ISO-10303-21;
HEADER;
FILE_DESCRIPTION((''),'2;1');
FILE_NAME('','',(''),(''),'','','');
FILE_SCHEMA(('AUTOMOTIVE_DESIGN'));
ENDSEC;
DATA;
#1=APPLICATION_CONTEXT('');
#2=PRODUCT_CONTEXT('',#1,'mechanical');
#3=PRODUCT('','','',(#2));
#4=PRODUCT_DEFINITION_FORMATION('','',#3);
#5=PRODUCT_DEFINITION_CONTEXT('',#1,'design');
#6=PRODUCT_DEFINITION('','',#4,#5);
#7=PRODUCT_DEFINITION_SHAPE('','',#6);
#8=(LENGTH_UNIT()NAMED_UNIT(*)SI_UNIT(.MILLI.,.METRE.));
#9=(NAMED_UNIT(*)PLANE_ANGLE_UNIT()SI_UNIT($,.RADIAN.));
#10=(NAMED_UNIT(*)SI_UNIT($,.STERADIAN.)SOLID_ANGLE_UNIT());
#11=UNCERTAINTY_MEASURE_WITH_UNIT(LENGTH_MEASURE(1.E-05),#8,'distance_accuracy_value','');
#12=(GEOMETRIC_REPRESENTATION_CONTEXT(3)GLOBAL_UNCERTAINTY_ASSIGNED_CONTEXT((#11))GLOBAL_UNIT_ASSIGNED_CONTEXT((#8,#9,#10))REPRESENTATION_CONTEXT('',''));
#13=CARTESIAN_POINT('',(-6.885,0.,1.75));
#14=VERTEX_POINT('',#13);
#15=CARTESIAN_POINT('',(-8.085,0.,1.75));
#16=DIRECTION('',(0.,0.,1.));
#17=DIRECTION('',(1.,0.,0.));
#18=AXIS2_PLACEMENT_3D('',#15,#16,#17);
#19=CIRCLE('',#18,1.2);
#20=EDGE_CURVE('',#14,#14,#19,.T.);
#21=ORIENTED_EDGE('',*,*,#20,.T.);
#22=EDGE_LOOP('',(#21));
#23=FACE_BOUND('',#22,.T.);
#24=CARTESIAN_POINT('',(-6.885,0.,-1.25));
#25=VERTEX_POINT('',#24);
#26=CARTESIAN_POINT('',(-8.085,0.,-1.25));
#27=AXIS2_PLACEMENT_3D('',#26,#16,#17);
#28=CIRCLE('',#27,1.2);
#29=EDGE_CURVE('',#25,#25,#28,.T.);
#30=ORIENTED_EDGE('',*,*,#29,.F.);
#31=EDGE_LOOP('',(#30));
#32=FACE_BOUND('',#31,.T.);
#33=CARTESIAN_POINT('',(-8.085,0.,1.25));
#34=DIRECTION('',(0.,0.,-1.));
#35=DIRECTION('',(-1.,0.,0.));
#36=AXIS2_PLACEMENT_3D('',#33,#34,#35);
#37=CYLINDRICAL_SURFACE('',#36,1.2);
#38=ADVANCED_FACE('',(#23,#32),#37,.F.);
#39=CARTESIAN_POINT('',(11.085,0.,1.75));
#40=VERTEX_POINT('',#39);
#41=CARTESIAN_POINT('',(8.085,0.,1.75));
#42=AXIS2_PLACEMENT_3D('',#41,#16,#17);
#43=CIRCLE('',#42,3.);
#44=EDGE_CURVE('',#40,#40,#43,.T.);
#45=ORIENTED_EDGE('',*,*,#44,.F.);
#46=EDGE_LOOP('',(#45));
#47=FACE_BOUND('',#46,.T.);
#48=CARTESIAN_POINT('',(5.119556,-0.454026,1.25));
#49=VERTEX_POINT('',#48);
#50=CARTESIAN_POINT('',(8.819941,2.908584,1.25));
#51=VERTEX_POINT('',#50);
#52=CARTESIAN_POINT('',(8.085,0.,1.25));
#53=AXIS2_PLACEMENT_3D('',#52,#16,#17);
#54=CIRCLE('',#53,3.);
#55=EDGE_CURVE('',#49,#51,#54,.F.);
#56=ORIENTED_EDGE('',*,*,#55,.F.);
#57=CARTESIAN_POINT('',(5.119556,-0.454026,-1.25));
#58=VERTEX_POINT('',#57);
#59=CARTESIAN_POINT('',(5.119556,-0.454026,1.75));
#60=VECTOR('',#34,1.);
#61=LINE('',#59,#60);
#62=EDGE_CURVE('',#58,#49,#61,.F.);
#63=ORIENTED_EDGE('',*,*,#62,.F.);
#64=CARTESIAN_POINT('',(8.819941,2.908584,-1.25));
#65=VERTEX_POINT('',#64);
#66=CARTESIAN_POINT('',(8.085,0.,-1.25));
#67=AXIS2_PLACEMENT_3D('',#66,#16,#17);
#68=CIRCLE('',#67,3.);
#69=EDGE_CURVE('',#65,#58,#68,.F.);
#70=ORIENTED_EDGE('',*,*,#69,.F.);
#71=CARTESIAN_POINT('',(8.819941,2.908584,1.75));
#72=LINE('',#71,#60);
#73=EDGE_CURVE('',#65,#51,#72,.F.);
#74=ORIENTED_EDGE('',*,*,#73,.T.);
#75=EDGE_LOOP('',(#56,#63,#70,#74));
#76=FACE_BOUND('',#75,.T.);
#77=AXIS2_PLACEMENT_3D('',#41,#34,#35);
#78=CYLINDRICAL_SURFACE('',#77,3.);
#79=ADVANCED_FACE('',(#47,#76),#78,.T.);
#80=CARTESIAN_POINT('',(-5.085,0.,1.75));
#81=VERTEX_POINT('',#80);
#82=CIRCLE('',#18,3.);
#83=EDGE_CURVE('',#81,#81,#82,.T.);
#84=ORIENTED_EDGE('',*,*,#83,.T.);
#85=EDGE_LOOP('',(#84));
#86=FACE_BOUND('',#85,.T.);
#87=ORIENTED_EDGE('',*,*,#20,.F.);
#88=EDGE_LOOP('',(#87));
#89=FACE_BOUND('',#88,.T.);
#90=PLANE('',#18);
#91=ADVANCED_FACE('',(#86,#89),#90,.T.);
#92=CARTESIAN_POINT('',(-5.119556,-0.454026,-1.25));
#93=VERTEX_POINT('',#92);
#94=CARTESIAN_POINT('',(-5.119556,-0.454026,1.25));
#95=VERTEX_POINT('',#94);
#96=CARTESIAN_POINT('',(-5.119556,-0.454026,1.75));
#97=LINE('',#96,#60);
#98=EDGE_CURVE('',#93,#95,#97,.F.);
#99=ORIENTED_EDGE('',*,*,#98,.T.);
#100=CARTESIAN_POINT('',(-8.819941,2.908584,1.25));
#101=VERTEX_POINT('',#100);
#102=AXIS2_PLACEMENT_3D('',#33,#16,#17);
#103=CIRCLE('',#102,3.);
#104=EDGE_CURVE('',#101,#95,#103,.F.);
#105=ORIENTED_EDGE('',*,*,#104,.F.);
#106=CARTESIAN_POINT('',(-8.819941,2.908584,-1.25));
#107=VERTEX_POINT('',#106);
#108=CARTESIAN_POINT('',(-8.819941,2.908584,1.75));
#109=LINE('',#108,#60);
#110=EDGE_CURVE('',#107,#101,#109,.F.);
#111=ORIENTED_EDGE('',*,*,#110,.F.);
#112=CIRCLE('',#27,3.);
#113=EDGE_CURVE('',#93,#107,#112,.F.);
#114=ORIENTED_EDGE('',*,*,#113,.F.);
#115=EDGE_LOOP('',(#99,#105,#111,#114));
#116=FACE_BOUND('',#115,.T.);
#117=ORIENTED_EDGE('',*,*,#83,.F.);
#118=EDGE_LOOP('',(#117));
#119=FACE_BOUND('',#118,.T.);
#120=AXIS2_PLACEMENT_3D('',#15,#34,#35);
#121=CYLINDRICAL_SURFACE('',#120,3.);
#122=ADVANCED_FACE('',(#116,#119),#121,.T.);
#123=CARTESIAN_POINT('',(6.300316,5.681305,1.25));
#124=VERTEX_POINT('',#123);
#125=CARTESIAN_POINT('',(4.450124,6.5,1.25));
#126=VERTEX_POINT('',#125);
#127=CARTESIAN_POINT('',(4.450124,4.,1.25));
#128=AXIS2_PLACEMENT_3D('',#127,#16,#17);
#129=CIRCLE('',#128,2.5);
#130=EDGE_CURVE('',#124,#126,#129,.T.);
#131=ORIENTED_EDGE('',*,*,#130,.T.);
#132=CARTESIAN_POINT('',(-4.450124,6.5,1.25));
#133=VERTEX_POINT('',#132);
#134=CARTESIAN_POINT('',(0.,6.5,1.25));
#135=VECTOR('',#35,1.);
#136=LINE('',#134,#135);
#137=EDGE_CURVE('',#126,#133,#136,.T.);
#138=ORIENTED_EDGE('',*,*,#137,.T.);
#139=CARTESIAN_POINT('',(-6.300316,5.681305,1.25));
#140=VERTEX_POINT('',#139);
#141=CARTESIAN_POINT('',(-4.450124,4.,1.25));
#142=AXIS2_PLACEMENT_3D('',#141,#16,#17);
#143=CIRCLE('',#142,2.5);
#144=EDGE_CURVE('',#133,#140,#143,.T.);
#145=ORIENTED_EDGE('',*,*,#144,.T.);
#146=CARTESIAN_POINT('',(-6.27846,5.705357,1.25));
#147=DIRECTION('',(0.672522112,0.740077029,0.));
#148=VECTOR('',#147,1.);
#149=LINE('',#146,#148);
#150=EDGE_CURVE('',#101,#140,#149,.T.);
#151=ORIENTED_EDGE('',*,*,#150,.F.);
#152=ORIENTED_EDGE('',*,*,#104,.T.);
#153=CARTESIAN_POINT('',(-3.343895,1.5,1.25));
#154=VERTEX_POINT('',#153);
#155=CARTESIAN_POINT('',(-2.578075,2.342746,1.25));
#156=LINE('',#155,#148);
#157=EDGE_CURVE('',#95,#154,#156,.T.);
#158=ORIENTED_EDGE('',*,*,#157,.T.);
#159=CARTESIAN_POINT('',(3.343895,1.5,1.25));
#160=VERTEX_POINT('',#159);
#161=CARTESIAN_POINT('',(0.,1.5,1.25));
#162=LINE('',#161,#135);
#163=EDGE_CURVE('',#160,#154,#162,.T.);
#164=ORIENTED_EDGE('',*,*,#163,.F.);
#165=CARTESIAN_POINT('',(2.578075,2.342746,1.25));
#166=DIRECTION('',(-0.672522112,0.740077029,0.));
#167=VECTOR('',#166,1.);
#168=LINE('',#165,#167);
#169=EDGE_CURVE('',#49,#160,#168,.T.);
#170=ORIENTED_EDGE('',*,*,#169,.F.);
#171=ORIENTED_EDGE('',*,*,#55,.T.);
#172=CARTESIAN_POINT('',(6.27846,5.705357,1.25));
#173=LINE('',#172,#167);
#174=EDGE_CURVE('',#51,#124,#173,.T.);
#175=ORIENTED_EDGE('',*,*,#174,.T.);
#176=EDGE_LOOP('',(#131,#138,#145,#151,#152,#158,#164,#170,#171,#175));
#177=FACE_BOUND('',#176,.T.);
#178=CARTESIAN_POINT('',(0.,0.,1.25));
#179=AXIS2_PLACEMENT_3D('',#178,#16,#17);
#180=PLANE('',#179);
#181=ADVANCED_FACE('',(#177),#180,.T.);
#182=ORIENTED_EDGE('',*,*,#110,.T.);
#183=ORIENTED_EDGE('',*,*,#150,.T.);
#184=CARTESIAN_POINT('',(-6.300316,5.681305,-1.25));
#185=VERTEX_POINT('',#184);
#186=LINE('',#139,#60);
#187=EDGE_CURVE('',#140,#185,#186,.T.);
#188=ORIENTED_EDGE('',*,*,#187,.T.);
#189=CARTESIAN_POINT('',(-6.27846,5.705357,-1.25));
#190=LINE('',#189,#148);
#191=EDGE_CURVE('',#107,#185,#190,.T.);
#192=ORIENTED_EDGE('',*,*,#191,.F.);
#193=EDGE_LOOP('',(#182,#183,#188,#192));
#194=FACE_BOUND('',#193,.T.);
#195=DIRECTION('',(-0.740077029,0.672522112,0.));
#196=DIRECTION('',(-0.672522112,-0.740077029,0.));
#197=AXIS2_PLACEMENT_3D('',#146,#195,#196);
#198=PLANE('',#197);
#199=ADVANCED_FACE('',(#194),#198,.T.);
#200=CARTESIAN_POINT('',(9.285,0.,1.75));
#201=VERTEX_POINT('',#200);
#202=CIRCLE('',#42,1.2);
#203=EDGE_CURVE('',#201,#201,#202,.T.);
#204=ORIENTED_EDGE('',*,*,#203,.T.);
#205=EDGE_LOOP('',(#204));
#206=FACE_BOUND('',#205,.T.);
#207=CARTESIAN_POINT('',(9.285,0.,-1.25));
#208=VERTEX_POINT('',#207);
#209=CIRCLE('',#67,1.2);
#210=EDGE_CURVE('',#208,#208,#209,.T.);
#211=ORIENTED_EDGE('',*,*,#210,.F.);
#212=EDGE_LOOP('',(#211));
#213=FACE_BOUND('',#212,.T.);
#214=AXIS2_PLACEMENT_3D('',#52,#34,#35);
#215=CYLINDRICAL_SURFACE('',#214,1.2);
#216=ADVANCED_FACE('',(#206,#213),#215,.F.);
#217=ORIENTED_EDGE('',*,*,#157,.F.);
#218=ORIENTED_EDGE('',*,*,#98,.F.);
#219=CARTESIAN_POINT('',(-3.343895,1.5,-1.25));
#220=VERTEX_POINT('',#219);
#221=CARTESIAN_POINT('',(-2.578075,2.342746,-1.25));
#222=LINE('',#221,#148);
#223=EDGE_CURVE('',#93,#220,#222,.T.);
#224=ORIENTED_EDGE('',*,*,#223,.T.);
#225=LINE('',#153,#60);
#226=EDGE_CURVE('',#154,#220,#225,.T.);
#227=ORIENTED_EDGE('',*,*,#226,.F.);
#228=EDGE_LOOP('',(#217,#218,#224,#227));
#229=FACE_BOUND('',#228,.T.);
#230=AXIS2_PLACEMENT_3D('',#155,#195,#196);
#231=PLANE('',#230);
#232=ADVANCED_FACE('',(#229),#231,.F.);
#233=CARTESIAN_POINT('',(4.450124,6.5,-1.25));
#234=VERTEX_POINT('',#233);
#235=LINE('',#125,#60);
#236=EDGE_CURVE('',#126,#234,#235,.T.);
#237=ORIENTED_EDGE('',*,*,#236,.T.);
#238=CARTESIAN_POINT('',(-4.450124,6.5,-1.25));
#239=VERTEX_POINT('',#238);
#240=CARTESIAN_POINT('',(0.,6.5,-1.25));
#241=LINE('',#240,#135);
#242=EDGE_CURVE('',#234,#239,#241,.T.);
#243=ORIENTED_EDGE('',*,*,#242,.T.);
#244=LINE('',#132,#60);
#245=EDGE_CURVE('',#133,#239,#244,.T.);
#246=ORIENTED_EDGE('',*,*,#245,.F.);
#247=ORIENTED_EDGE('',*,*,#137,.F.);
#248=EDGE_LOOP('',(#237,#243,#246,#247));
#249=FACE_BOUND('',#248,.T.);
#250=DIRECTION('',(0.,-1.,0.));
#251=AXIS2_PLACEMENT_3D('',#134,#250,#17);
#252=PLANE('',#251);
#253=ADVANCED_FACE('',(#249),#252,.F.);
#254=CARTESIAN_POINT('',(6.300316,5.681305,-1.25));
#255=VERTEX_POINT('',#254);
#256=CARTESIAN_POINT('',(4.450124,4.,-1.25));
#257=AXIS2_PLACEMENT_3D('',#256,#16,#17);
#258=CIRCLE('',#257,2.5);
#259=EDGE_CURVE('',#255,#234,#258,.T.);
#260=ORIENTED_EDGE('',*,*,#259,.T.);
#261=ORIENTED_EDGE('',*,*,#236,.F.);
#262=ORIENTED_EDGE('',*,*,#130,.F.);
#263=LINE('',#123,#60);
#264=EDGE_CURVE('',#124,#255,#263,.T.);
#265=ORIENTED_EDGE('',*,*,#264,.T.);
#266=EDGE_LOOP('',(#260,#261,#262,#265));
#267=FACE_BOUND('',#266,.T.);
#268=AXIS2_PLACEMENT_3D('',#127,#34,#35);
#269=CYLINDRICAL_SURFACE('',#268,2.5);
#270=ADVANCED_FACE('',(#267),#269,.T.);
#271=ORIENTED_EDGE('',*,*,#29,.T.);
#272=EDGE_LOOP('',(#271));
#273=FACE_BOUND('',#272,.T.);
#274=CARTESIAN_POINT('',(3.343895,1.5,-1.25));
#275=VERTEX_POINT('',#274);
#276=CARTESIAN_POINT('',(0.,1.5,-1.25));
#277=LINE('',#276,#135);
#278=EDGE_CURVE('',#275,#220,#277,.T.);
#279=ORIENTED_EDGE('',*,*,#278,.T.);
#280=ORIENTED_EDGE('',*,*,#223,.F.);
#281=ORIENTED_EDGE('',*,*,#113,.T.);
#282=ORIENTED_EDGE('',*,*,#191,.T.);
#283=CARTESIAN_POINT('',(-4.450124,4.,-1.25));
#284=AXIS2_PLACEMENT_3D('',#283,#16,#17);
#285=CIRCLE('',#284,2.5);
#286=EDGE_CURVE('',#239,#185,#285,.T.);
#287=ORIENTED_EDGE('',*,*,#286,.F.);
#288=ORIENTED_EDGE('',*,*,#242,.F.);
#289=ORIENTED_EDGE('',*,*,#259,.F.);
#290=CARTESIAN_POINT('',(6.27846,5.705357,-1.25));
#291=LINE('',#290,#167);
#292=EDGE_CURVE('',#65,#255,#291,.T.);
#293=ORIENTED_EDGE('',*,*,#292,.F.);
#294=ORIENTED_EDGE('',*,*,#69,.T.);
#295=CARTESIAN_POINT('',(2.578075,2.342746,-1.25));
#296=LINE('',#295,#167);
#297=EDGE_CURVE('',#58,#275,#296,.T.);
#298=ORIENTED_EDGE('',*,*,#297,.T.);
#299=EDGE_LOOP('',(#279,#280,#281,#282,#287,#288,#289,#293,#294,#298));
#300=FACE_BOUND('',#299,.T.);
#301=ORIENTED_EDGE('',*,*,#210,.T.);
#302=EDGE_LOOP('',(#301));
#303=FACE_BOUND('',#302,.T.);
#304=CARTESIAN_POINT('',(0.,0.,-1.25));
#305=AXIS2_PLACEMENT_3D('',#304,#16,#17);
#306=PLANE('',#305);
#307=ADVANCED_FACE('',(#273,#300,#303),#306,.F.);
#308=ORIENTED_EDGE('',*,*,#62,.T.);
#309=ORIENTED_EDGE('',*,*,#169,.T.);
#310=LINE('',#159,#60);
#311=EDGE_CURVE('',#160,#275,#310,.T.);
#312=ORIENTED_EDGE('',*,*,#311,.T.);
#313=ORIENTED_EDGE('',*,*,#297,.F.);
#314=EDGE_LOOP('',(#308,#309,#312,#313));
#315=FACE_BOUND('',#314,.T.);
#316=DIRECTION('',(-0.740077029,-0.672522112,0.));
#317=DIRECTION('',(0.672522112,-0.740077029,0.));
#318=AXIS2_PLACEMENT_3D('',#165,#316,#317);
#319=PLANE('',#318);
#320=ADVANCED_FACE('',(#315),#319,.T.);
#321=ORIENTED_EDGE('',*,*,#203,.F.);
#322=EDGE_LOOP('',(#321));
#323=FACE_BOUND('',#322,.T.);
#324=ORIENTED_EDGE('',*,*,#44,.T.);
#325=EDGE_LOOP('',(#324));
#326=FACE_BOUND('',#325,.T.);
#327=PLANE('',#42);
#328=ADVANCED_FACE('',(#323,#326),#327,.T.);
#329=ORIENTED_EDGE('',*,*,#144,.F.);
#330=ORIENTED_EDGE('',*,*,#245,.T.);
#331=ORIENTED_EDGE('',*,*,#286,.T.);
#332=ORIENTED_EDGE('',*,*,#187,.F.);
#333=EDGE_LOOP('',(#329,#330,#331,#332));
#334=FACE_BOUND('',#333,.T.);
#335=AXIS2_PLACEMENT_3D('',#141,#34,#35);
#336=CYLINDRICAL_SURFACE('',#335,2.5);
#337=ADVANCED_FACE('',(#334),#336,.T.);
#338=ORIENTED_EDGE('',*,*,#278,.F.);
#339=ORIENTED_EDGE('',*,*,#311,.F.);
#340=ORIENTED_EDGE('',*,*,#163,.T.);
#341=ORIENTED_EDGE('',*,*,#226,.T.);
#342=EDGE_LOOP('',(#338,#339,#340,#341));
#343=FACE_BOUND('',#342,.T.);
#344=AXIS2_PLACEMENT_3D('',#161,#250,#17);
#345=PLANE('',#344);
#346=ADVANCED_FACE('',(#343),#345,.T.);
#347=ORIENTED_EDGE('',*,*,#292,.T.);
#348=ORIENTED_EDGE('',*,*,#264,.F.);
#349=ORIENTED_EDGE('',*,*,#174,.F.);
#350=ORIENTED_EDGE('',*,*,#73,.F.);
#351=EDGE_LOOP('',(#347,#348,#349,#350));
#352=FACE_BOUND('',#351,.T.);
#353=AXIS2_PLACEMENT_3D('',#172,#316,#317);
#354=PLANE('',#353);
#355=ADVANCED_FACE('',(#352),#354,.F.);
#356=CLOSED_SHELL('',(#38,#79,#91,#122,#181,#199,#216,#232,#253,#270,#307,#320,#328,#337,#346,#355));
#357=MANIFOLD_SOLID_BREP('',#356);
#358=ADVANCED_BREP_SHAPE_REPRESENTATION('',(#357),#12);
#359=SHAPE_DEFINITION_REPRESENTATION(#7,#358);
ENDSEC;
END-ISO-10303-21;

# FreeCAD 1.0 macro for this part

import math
import FreeCAD as App
import Part
import Sketcher

doc = App.newDocument("Part")
params = doc.addObject("Spreadsheet::Sheet", "Params")
for row, (alias, value) in enumerate([
    ("sketch1_diameter", "2.4 mm"),
    ("sketch1_radius", "2.5 mm"),
    ("pad1_length", "2.5 mm"),
    ("sketch2_diameter", "6 mm"),
    ("sketch2_diameter2", "2.4 mm"),
    ("pad2_length", "0.5 mm"),
    ("pad2_length2", "2.5 mm"),
], start=1):
    params.set(f"A{row}", alias)
    params.set(f"B{row}", "=" + value)
    params.setAlias(f"B{row}", alias)

body = doc.addObject("PartDesign::Body", "Body")

# Sketch on XY plane
sketch1 = doc.addObject("Sketcher::SketchObject", "Sketch")
body.addObject(sketch1)
sketch1.AttachmentSupport = (doc.XY_Plane, [""])
sketch1.MapMode = "FlatFace"
sketch1.addGeometry(Part.LineSegment(App.Vector(-6.234807, -1.681305, 0), App.Vector(-3.343895, 1.5, 0)), False)
sketch1.addGeometry(Part.LineSegment(App.Vector(-3.343895, 1.5, 0), App.Vector(3.343895, 1.5, 0)), False)
sketch1.addGeometry(Part.LineSegment(App.Vector(3.343895, 1.5, 0), App.Vector(6.234807, -1.681305, 0)), False)
sketch1.addGeometry(Part.ArcOfCircle(Part.Circle(App.Vector(8.085, 0, 0), App.Vector(0, 0, 1), 2.5), math.radians(-137.737978), math.radians(42.262022)), False)
sketch1.addGeometry(Part.LineSegment(App.Vector(9.935193, 1.681305, 0), App.Vector(6.300316, 5.681305, 0)), False)
sketch1.addGeometry(Part.ArcOfCircle(Part.Circle(App.Vector(4.450124, 4, 0), App.Vector(0, 0, 1), 2.5), math.radians(42.262022), math.radians(90)), False)
sketch1.addGeometry(Part.LineSegment(App.Vector(4.450124, 6.5, 0), App.Vector(-4.450124, 6.5, 0)), False)
sketch1.addGeometry(Part.ArcOfCircle(Part.Circle(App.Vector(-4.450124, 4, 0), App.Vector(0, 0, 1), 2.5), math.radians(90), math.radians(137.737978)), False)
sketch1.addGeometry(Part.LineSegment(App.Vector(-6.300316, 5.681305, 0), App.Vector(-9.935193, 1.681305, 0)), False)
sketch1.addGeometry(Part.ArcOfCircle(Part.Circle(App.Vector(-8.085, 0, 0), App.Vector(0, 0, 1), 2.5), math.radians(137.737978), math.radians(317.737978)), False)
sketch1.addGeometry(Part.Circle(App.Vector(-8.085, 0, 0), App.Vector(0, 0, 1), 1.2), False)
sketch1.addGeometry(Part.Circle(App.Vector(8.085, 0, 0), App.Vector(0, 0, 1), 1.2), False)
sketch1.addConstraint(Sketcher.Constraint("Coincident", 0, 2, 1, 1))
sketch1.addConstraint(Sketcher.Constraint("Coincident", 1, 2, 2, 1))
sketch1.addConstraint(Sketcher.Constraint("Tangent", 2, 2, 3, 1))
sketch1.addConstraint(Sketcher.Constraint("Tangent", 3, 2, 4, 1))
sketch1.addConstraint(Sketcher.Constraint("Tangent", 4, 2, 5, 1))
sketch1.addConstraint(Sketcher.Constraint("Tangent", 5, 2, 6, 1))
sketch1.addConstraint(Sketcher.Constraint("Tangent", 6, 2, 7, 1))
sketch1.addConstraint(Sketcher.Constraint("Tangent", 7, 2, 8, 1))
sketch1.addConstraint(Sketcher.Constraint("Tangent", 8, 2, 9, 1))
sketch1.addConstraint(Sketcher.Constraint("Tangent", 9, 2, 0, 1))
sketch1.addConstraint(Sketcher.Constraint("Horizontal", 1))
sketch1.addConstraint(Sketcher.Constraint("Horizontal", 6))
sketch1.addConstraint(Sketcher.Constraint("Coincident", 10, 3, 9, 3))
sketch1.addConstraint(Sketcher.Constraint("Coincident", 11, 3, 3, 3))
sketch1.addConstraint(Sketcher.Constraint("Equal", 3, 5))
sketch1.addConstraint(Sketcher.Constraint("Equal", 5, 7))
sketch1.addConstraint(Sketcher.Constraint("Equal", 7, 9))
sketch1.addConstraint(Sketcher.Constraint("Equal", 10, 11))
sketch1.addConstraint(Sketcher.Constraint("Symmetric", 3, 3, 9, 3, -1, 1))
sketch1.addConstraint(Sketcher.Constraint("Symmetric", 4, 2, 7, 2, -2))
sketch1.addConstraint(Sketcher.Constraint("Parallel", 2, 4))
sketch1.addConstraint(Sketcher.Constraint("Parallel", 0, 8))
sketch1.addConstraint(Sketcher.Constraint("Diameter", 10, 2.4))
sketch1.addConstraint(Sketcher.Constraint("Radius", 3, 2.5))
sketch1.addConstraint(Sketcher.Constraint("DistanceY", -1, 1, 5, 3, 4.0))
sketch1.addConstraint(Sketcher.Constraint("DistanceY", 1, 2, 5, 2, 5.0))
sketch1.addConstraint(Sketcher.Constraint("DistanceX", 9, 3, 3, 3, 16.17))
sketch1.addConstraint(Sketcher.Constraint("DistanceX", 1, 1, 1, 2, 6.687789))
sketch1.setExpression("Constraints[22]", "Params.sketch1_diameter")
sketch1.setExpression("Constraints[23]", "Params.sketch1_radius")
pad1 = doc.addObject("PartDesign::Pad", "Pad")
body.addObject(pad1)
pad1.Profile = sketch1
pad1.setExpression("Length", "Params.pad1_length")
pad1.Midplane = True

# Sketch on XY plane
sketch2 = doc.addObject("Sketcher::SketchObject", "Sketch001")
body.addObject(sketch2)
sketch2.AttachmentSupport = (doc.XY_Plane, [""])
sketch2.MapMode = "FlatFace"
sketch2.AttachmentOffset = App.Placement(App.Vector(0, 0, 1.25), App.Rotation())
sketch2.addGeometry(Part.Circle(App.Vector(8.085, 0, 0), App.Vector(0, 0, 1), 3), False)
sketch2.addGeometry(Part.Circle(App.Vector(8.085, 0, 0), App.Vector(0, 0, 1), 1.2), False)
sketch2.addGeometry(Part.Circle(App.Vector(-8.085, 0, 0), App.Vector(0, 0, 1), 3), False)
sketch2.addGeometry(Part.Circle(App.Vector(-8.085, 0, 0), App.Vector(0, 0, 1), 1.2), False)
sketch2.addConstraint(Sketcher.Constraint("Coincident", 1, 3, 0, 3))
sketch2.addConstraint(Sketcher.Constraint("Coincident", 3, 3, 2, 3))
sketch2.addConstraint(Sketcher.Constraint("Equal", 0, 2))
sketch2.addConstraint(Sketcher.Constraint("Equal", 1, 3))
sketch2.addConstraint(Sketcher.Constraint("Symmetric", 0, 3, 2, 3, -1, 1))
sketch2.addConstraint(Sketcher.Constraint("PointOnObject", 0, 3, -1))
sketch2.addConstraint(Sketcher.Constraint("Diameter", 0, 6.0))
sketch2.addConstraint(Sketcher.Constraint("Diameter", 1, 2.4))
sketch2.addConstraint(Sketcher.Constraint("DistanceX", 2, 3, 0, 3, 16.17))
sketch2.setExpression("Constraints[6]", "Params.sketch2_diameter")
sketch2.setExpression("Constraints[7]", "Params.sketch2_diameter2")
pad2 = doc.addObject("PartDesign::Pad", "Pad001")
body.addObject(pad2)
pad2.Profile = sketch2
pad2.Type = "TwoLengths"
pad2.setExpression("Length", "Params.pad2_length")
pad2.setExpression("Length2", "Params.pad2_length2")

doc.recompute()
